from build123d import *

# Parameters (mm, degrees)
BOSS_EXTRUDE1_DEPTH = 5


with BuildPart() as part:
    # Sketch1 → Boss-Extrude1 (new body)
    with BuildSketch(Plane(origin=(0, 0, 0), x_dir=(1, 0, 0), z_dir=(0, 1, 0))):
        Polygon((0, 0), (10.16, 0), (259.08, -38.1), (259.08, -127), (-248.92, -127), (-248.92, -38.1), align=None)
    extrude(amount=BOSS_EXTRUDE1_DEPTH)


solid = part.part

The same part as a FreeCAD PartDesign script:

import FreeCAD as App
import Part
import Sketcher
Q = App.Units.Quantity

doc = App.newDocument("Part")
body = doc.addObject("PartDesign::Body", "Body")

# Sketch on XZ plane
sketch1 = body.newObject("Sketcher::SketchObject", "Sketch")
sketch1.AttachmentSupport = (doc.getObject("XZ_Plane"), [""])
sketch1.MapMode = "FlatFace"
sketch1.addGeometry(Part.LineSegment(App.Vector(10, 0, 0), App.Vector(0, 0, 0)), False)
sketch1.addGeometry(Part.LineSegment(App.Vector(0, 0, 0), App.Vector(-249, 38, 0)), False)
sketch1.addGeometry(Part.LineSegment(App.Vector(-249, 38, 0), App.Vector(-249, 127, 0)), False)
sketch1.addGeometry(Part.LineSegment(App.Vector(-249, 127, 0), App.Vector(259, 127, 0)), False)
sketch1.addGeometry(Part.LineSegment(App.Vector(259, 127, 0), App.Vector(259, 38, 0)), False)
sketch1.addGeometry(Part.LineSegment(App.Vector(259, 38, 0), App.Vector(10, 0, 0)), False)
sketch1.addConstraint(Sketcher.Constraint("Coincident", 0, 2, 1, 1))
sketch1.addConstraint(Sketcher.Constraint("Coincident", 1, 2, 2, 1))
sketch1.addConstraint(Sketcher.Constraint("Coincident", 2, 2, 3, 1))
sketch1.addConstraint(Sketcher.Constraint("Coincident", 3, 2, 4, 1))
sketch1.addConstraint(Sketcher.Constraint("Coincident", 4, 2, 5, 1))
sketch1.addConstraint(Sketcher.Constraint("Coincident", 5, 2, 0, 1))
sketch1.addConstraint(Sketcher.Constraint("Horizontal", 0))
sketch1.addConstraint(Sketcher.Constraint("Vertical", 2))
sketch1.addConstraint(Sketcher.Constraint("Horizontal", 3))
sketch1.addConstraint(Sketcher.Constraint("Vertical", 4))
sketch1.addConstraint(Sketcher.Constraint("Coincident", 0, 2, -1, 1))
sketch1.addConstraint(Sketcher.Constraint("Horizontal", 1, 2, 4, 2))
sketch1.addConstraint(Sketcher.Constraint("Equal", 1, 5))
sketch1.addConstraint(Sketcher.Constraint("DistanceX", 3, 1, 3, 2, Q("20 in")))
sketch1.addConstraint(Sketcher.Constraint("DistanceX", 0, 2, 0, 1, Q("0.4 in")))
sketch1.addConstraint(Sketcher.Constraint("DistanceY", 2, 1, 2, 2, Q("3.5 in")))
sketch1.addConstraint(Sketcher.Constraint("DistanceY", -1, 1, 2, 2, Q("5 in")))
pad1 = body.newObject("PartDesign::Pad", "Pad")
pad1.Profile = sketch1
pad1.Length = 5
pad1.Reversed = True

doc.recompute()
